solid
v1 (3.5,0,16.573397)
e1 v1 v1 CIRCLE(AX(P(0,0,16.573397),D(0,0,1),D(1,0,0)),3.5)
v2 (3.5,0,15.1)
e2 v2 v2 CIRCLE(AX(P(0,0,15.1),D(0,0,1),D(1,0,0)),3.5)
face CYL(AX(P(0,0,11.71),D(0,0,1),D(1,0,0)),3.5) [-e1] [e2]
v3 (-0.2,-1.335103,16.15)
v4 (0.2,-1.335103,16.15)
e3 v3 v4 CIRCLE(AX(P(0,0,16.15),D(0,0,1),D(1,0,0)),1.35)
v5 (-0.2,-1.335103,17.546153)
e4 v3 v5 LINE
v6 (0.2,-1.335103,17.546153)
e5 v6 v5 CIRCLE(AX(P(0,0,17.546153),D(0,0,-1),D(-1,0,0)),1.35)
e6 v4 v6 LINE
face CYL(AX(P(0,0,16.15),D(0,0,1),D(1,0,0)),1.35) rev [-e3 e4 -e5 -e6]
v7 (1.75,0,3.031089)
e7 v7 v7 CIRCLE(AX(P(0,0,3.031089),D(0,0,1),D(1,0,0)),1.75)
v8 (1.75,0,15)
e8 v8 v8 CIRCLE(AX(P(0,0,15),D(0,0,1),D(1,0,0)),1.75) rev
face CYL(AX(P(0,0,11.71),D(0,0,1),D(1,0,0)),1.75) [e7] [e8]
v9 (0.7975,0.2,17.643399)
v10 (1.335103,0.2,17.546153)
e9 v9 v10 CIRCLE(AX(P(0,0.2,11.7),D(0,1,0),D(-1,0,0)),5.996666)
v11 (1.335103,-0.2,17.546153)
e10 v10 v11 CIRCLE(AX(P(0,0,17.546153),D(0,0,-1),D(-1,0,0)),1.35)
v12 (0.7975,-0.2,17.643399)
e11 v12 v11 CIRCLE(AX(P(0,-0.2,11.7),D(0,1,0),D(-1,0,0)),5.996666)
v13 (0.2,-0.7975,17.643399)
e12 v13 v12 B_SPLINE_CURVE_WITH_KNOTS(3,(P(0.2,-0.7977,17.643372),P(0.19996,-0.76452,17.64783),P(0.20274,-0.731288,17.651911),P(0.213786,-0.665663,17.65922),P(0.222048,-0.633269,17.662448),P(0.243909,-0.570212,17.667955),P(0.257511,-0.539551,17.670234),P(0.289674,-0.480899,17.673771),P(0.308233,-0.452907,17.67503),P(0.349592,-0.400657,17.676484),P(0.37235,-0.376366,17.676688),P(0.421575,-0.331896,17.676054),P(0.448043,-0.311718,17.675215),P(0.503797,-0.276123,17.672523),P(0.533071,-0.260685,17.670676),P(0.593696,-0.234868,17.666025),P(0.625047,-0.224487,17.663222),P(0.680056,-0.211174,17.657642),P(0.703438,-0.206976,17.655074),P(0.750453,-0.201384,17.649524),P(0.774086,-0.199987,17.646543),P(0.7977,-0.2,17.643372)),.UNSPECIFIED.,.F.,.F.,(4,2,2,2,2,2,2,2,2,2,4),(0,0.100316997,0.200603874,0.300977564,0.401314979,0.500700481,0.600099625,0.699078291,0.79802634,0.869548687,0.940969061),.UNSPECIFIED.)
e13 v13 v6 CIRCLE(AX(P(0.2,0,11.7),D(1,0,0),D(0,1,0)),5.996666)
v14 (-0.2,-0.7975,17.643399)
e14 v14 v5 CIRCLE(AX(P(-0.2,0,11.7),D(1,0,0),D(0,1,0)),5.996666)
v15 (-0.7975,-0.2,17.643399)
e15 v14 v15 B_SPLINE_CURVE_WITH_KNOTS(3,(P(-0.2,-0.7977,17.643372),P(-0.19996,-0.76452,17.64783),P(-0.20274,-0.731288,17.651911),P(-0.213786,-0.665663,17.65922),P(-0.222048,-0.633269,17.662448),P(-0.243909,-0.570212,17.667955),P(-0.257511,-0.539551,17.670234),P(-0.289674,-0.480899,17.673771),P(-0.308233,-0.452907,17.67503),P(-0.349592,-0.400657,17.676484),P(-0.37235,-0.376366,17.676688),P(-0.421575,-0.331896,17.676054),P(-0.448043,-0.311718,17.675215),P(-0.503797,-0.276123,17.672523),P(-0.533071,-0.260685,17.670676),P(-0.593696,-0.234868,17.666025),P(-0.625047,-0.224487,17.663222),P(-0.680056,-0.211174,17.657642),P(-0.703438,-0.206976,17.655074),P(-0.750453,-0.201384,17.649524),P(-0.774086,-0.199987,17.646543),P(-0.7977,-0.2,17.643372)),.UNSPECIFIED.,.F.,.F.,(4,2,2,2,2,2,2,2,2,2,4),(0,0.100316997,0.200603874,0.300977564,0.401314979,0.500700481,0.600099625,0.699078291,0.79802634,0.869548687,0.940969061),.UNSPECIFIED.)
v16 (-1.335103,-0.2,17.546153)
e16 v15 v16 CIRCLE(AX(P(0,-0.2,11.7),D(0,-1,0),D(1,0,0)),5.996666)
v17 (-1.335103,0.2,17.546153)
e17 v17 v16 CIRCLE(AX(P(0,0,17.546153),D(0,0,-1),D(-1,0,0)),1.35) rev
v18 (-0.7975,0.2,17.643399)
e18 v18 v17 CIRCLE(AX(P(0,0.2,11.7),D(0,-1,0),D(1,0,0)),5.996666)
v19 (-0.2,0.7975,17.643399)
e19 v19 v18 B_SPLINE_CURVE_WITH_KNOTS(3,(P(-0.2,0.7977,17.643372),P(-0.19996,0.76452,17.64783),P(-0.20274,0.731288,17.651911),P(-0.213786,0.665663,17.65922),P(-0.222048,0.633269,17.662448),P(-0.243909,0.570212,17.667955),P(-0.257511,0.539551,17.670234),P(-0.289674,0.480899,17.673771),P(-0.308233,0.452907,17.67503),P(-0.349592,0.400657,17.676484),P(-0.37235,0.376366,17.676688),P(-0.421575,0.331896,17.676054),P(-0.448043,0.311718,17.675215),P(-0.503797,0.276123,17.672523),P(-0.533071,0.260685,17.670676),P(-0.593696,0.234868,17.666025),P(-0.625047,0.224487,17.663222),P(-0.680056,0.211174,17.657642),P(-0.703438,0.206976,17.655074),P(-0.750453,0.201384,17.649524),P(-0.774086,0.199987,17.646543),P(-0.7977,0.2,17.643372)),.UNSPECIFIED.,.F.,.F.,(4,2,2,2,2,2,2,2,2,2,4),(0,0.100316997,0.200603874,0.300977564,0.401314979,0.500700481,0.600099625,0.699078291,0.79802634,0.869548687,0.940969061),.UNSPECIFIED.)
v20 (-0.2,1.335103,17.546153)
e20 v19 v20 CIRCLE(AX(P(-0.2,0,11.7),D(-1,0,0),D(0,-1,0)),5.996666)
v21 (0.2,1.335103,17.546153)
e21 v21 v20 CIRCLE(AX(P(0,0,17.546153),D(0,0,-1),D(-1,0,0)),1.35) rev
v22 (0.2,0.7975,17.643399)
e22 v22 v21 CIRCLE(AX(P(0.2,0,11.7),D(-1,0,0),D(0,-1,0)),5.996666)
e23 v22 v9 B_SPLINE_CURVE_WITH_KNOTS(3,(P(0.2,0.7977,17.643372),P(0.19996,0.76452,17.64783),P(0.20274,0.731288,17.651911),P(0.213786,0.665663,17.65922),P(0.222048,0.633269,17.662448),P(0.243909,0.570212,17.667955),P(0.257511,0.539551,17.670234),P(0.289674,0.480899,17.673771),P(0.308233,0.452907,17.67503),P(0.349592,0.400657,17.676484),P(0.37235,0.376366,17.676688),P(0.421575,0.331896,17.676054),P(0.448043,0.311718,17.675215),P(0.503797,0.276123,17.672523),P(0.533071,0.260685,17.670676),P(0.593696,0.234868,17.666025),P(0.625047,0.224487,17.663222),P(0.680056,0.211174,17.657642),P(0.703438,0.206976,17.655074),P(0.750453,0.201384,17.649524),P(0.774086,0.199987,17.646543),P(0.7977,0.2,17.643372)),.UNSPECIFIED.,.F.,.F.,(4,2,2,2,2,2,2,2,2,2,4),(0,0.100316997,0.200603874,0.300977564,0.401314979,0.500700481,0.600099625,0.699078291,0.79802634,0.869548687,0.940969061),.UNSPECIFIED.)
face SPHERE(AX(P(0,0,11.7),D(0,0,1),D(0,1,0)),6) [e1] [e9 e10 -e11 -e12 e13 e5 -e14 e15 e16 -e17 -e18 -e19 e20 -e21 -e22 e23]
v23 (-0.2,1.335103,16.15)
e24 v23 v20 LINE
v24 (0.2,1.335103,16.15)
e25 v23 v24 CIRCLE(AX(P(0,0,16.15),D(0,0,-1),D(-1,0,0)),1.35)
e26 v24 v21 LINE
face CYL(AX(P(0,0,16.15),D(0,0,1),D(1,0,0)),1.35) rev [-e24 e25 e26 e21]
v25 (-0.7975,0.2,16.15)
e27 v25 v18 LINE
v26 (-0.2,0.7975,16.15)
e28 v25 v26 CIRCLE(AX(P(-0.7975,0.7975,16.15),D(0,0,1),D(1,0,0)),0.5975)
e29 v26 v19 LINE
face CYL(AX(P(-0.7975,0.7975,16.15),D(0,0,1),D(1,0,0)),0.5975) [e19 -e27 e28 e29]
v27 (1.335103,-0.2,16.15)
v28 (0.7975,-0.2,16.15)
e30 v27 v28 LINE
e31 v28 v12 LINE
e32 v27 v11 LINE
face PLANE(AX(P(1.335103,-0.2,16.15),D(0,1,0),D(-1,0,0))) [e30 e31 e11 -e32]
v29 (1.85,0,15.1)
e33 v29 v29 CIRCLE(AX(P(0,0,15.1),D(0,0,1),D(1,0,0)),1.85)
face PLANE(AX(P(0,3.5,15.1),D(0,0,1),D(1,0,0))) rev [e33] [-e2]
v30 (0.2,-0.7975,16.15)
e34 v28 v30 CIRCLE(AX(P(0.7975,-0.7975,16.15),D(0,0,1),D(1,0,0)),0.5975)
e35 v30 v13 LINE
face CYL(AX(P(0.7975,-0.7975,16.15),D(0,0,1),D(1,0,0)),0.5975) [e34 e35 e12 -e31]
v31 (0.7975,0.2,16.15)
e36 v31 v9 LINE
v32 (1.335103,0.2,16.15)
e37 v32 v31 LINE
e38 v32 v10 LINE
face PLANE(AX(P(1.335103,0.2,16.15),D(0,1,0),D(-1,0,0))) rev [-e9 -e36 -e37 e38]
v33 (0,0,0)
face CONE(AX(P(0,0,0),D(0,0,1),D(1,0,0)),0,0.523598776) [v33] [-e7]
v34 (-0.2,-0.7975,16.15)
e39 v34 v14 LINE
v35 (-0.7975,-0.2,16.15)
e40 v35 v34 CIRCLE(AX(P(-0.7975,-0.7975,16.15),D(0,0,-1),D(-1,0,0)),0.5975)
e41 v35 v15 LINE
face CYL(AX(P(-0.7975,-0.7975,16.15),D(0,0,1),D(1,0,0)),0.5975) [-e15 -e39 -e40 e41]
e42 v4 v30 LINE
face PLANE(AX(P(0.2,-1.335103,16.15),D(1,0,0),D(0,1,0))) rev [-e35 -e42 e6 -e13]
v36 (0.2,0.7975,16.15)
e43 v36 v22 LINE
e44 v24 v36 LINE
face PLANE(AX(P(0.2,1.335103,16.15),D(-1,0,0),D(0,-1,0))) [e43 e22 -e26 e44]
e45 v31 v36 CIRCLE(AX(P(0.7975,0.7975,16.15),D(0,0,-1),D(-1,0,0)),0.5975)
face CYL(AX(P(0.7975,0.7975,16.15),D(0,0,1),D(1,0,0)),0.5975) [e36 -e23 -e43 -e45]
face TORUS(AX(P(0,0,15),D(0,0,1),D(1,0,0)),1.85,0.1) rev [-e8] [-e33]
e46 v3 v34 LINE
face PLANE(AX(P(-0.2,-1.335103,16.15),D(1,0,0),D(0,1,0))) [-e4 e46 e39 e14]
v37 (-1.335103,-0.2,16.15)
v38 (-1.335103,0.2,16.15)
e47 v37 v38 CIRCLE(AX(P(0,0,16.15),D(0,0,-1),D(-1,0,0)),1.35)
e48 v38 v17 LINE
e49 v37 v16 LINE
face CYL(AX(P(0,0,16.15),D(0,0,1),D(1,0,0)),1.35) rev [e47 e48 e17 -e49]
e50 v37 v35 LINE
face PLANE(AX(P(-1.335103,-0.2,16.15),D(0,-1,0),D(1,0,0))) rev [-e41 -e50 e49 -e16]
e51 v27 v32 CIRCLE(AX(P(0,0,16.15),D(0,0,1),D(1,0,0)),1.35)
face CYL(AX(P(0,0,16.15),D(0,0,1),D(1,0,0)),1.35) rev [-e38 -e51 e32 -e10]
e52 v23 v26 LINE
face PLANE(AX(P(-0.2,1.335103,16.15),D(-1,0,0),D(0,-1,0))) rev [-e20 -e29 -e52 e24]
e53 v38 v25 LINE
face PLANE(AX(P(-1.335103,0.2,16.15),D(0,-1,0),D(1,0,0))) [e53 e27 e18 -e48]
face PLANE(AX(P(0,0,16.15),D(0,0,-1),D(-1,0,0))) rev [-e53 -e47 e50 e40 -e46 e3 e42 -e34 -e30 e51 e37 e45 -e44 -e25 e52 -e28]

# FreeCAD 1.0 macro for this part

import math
import FreeCAD as App
import Part
import Sketcher
from FreeCAD import Vector
Q = App.Units.Quantity


def edges_at(feature, points):
    """Names of the edges that pass closest to the given points."""
    edges = feature.Shape.Edges
    near = lambda p: min(range(len(edges)), key=lambda i: edges[i].distToShape(Part.Vertex(*p))[0])
    return sorted({f"Edge{near(p) + 1}" for p in points})

doc = App.newDocument("Part")
body = doc.addObject("PartDesign::Body", "Body")

# Sketch on YZ plane
sketch1 = doc.addObject("Sketcher::SketchObject", "Sketch")
body.addObject(sketch1)
sketch1.AttachmentSupport = (doc.YZ_Plane, [""])
sketch1.MapMode = "FlatFace"
sketch1.addGeometry([
    Part.LineSegment(Vector(0, 17.7, 0), Vector(0, 0, 0)),  # 0
    Part.LineSegment(Vector(0, 0, 0), Vector(1.75, 3.031089, 0)),  # 1
    Part.LineSegment(Vector(1.75, 3.031089, 0), Vector(1.75, 15.1, 0)),  # 2
    Part.LineSegment(Vector(1.75, 15.1, 0), Vector(3.5, 15.1, 0)),  # 3
    Part.LineSegment(Vector(3.5, 15.1, 0), Vector(3.5, 16.573397, 0)),  # 4
    Part.ArcOfCircle(Part.Circle(Vector(0, 11.7, 0), Vector(0, 0, 1), 6), math.radians(54.314665), math.radians(90)),  # 5
], False)
sketch1.addConstraint([
    Sketcher.Constraint("Coincident", 0, 2, 1, 1),
    Sketcher.Constraint("Coincident", 1, 2, 2, 1),
    Sketcher.Constraint("Coincident", 2, 2, 3, 1),
    Sketcher.Constraint("Coincident", 3, 2, 4, 1),
    Sketcher.Constraint("Coincident", 4, 2, 5, 1),
    Sketcher.Constraint("Coincident", 5, 2, 0, 1),
    Sketcher.Constraint("Vertical", 0),
    Sketcher.Constraint("Vertical", 2),
    Sketcher.Constraint("Horizontal", 3),
    Sketcher.Constraint("Vertical", 4),
    Sketcher.Constraint("Coincident", 0, 2, -1, 1),
    Sketcher.Constraint("PointOnObject", 5, 3, -2),
    Sketcher.Constraint("Radius", 5, 6.0),
    Sketcher.Constraint("Angle", 1, Q("60 deg")),
    Sketcher.Constraint("DistanceY", 0, 2, 0, 1, 17.7),
    Sketcher.Constraint("Distance", 1, 3.5),
    Sketcher.Constraint("DistanceX", 3, 1, 3, 2, 1.75),
    Sketcher.Constraint("DistanceY", -1, 1, 2, 2, 15.1),
])
revolution = doc.addObject("PartDesign::Revolution", "Revolution")
body.addObject(revolution)
revolution.Profile = sketch1
revolution.ReferenceAxis = (sketch1, ["V_Axis"])
revolution.Angle = 360

# Sketch on XY plane
sketch2 = doc.addObject("Sketcher::SketchObject", "Sketch001")
body.addObject(sketch2)
sketch2.AttachmentSupport = (doc.XY_Plane, [""])
sketch2.MapMode = "FlatFace"
sketch2.AttachmentOffset = App.Placement(Vector(0, 0, 17.7), App.Rotation())
sketch2.addGeometry([
    Part.LineSegment(Vector(0.2, 0.7975, 0), Vector(0.2, 1.335103, 0)),  # 0
    Part.ArcOfCircle(Part.Circle(Vector(0, 0, 0), Vector(0, 0, 1), 1.35), math.radians(81.480376), math.radians(98.519624)),  # 1
    Part.LineSegment(Vector(-0.2, 1.335103, 0), Vector(-0.2, 0.7975, 0)),  # 2
    Part.ArcOfCircle(Part.Circle(Vector(-0.7975, 0.7975, 0), Vector(0, 0, 1), 0.5975), math.radians(-90), math.radians(0)),  # 3
    Part.LineSegment(Vector(-0.7975, 0.2, 0), Vector(-1.335103, 0.2, 0)),  # 4
    Part.ArcOfCircle(Part.Circle(Vector(0, 0, 0), Vector(0, 0, 1), 1.35), math.radians(171.480376), math.radians(188.519624)),  # 5
    Part.LineSegment(Vector(-1.335103, -0.2, 0), Vector(-0.7975, -0.2, 0)),  # 6
    Part.ArcOfCircle(Part.Circle(Vector(-0.7975, -0.7975, 0), Vector(0, 0, 1), 0.5975), math.radians(0), math.radians(90)),  # 7
    Part.LineSegment(Vector(-0.2, -0.7975, 0), Vector(-0.2, -1.335103, 0)),  # 8
    Part.ArcOfCircle(Part.Circle(Vector(0, 0, 0), Vector(0, 0, 1), 1.35), math.radians(-98.519624), math.radians(-81.480376)),  # 9
    Part.LineSegment(Vector(0.2, -1.335103, 0), Vector(0.2, -0.7975, 0)),  # 10
    Part.ArcOfCircle(Part.Circle(Vector(0.7975, -0.7975, 0), Vector(0, 0, 1), 0.5975), math.radians(90), math.radians(180)),  # 11
    Part.LineSegment(Vector(0.7975, -0.2, 0), Vector(1.335103, -0.2, 0)),  # 12
    Part.ArcOfCircle(Part.Circle(Vector(0, 0, 0), Vector(0, 0, 1), 1.35), math.radians(-8.519624), math.radians(8.519624)),  # 13
    Part.LineSegment(Vector(1.335103, 0.2, 0), Vector(0.7975, 0.2, 0)),  # 14
    Part.ArcOfCircle(Part.Circle(Vector(0.7975, 0.7975, 0), Vector(0, 0, 1), 0.5975), math.radians(180), math.radians(270)),  # 15
], False)
sketch2.addConstraint([
    Sketcher.Constraint("Coincident", 0, 2, 1, 1),
    Sketcher.Constraint("Coincident", 1, 2, 2, 1),
    Sketcher.Constraint("Tangent", 2, 2, 3, 2),
    Sketcher.Constraint("Tangent", 3, 1, 4, 1),
    Sketcher.Constraint("Coincident", 4, 2, 5, 1),
    Sketcher.Constraint("Coincident", 5, 2, 6, 1),
    Sketcher.Constraint("Tangent", 6, 2, 7, 2),
    Sketcher.Constraint("Tangent", 7, 1, 8, 1),
    Sketcher.Constraint("Coincident", 8, 2, 9, 1),
    Sketcher.Constraint("Coincident", 9, 2, 10, 1),
    Sketcher.Constraint("Tangent", 10, 2, 11, 2),
    Sketcher.Constraint("Tangent", 11, 1, 12, 1),
    Sketcher.Constraint("Coincident", 12, 2, 13, 1),
    Sketcher.Constraint("Coincident", 13, 2, 14, 1),
    Sketcher.Constraint("Tangent", 14, 2, 15, 2),
    Sketcher.Constraint("Tangent", 15, 1, 0, 1),
    Sketcher.Constraint("Vertical", 0),
    Sketcher.Constraint("Vertical", 2),
    Sketcher.Constraint("Horizontal", 4),
    Sketcher.Constraint("Horizontal", 6),
    Sketcher.Constraint("Vertical", 8),
    Sketcher.Constraint("Vertical", 10),
    Sketcher.Constraint("Horizontal", 12),
    Sketcher.Constraint("Horizontal", 14),
    Sketcher.Constraint("Coincident", 1, 3, -1, 1),
    Sketcher.Constraint("Coincident", 5, 3, -1, 1),
    Sketcher.Constraint("Coincident", 9, 3, -1, 1),
    Sketcher.Constraint("Coincident", 13, 3, -1, 1),
    Sketcher.Constraint("Equal", 1, 5),
    Sketcher.Constraint("Equal", 3, 7),
    Sketcher.Constraint("Equal", 5, 9),
    Sketcher.Constraint("Equal", 7, 11),
    Sketcher.Constraint("Equal", 9, 13),
    Sketcher.Constraint("Equal", 11, 15),
    Sketcher.Constraint("Symmetric", 3, 3, 11, 3, -1, 1),
    Sketcher.Constraint("Symmetric", 7, 3, 15, 3, -1, 1),
    Sketcher.Constraint("Symmetric", 7, 3, 11, 3, -2),
    Sketcher.Constraint("Equal", 14, 0),
    Sketcher.Constraint("Radius", 1, 1.35),
    Sketcher.Constraint("DistanceX", -1, 1, 0, 2, 0.2),
    Sketcher.Constraint("Radius", 3, 0.5975),
])
pocket1 = doc.addObject("PartDesign::Pocket", "Pocket")
body.addObject(pocket1)
pocket1.Profile = sketch2
pocket1.Length = 1.55
doc.recompute()

fillet = doc.addObject("PartDesign::Fillet", "Fillet")
body.addObject(fillet)
fillet.Base = (pocket1, edges_at(pocket1, [(-1.75, 0, 15.1)]))
fillet.Radius = 0.1

doc.recompute()
